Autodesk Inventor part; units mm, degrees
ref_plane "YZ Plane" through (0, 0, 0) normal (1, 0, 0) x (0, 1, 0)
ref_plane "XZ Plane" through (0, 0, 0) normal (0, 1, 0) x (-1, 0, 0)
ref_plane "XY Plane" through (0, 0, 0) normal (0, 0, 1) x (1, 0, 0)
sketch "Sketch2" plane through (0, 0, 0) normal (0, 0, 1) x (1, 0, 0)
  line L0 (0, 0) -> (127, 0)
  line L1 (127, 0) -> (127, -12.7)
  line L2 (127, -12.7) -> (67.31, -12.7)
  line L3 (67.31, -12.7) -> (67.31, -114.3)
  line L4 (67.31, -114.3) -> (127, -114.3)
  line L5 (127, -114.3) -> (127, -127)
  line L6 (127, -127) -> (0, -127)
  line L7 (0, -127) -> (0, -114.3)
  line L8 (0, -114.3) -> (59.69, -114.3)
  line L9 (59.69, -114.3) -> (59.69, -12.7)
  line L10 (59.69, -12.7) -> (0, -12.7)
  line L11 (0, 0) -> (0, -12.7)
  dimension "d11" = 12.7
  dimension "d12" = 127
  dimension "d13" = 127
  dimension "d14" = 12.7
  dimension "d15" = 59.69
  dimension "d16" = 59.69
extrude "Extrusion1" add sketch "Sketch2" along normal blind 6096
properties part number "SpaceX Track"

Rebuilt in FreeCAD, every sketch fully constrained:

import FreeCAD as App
import Part
import Sketcher
Q = App.Units.Quantity

doc = App.newDocument("Part")
body = doc.addObject("PartDesign::Body", "Body")

# Sketch on XY plane
sketch1 = body.newObject("Sketcher::SketchObject", "Sketch")
sketch1.AttachmentSupport = (doc.getObject("XY_Plane"), [""])
sketch1.MapMode = "FlatFace"
sketch1.addGeometry(Part.LineSegment(App.Vector(127, 0, 0), App.Vector(0, 0, 0)), False)
sketch1.addGeometry(Part.LineSegment(App.Vector(0, 0, 0), App.Vector(0, -13, 0)), False)
sketch1.addGeometry(Part.LineSegment(App.Vector(0, -13, 0), App.Vector(60, -13, 0)), False)
sketch1.addGeometry(Part.LineSegment(App.Vector(60, -13, 0), App.Vector(60, -114, 0)), False)
sketch1.addGeometry(Part.LineSegment(App.Vector(60, -114, 0), App.Vector(0, -114, 0)), False)
sketch1.addGeometry(Part.LineSegment(App.Vector(0, -114, 0), App.Vector(0, -127, 0)), False)
sketch1.addGeometry(Part.LineSegment(App.Vector(0, -127, 0), App.Vector(127, -127, 0)), False)
sketch1.addGeometry(Part.LineSegment(App.Vector(127, -127, 0), App.Vector(127, -114, 0)), False)
sketch1.addGeometry(Part.LineSegment(App.Vector(127, -114, 0), App.Vector(67, -114, 0)), False)
sketch1.addGeometry(Part.LineSegment(App.Vector(67, -114, 0), App.Vector(67, -13, 0)), False)
sketch1.addGeometry(Part.LineSegment(App.Vector(67, -13, 0), App.Vector(127, -13, 0)), False)
sketch1.addGeometry(Part.LineSegment(App.Vector(127, -13, 0), App.Vector(127, 0, 0)), False)
sketch1.addConstraint(Sketcher.Constraint("Coincident", 0, 2, 1, 1))
sketch1.addConstraint(Sketcher.Constraint("Coincident", 1, 2, 2, 1))
sketch1.addConstraint(Sketcher.Constraint("Coincident", 2, 2, 3, 1))
sketch1.addConstraint(Sketcher.Constraint("Coincident", 3, 2, 4, 1))
sketch1.addConstraint(Sketcher.Constraint("Coincident", 4, 2, 5, 1))
sketch1.addConstraint(Sketcher.Constraint("Coincident", 5, 2, 6, 1))
sketch1.addConstraint(Sketcher.Constraint("Coincident", 6, 2, 7, 1))
sketch1.addConstraint(Sketcher.Constraint("Coincident", 7, 2, 8, 1))
sketch1.addConstraint(Sketcher.Constraint("Coincident", 8, 2, 9, 1))
sketch1.addConstraint(Sketcher.Constraint("Coincident", 9, 2, 10, 1))
sketch1.addConstraint(Sketcher.Constraint("Coincident", 10, 2, 11, 1))
sketch1.addConstraint(Sketcher.Constraint("Coincident", 11, 2, 0, 1))
sketch1.addConstraint(Sketcher.Constraint("Horizontal", 0))
sketch1.addConstraint(Sketcher.Constraint("Vertical", 1))
sketch1.addConstraint(Sketcher.Constraint("Horizontal", 2))
sketch1.addConstraint(Sketcher.Constraint("Vertical", 3))
sketch1.addConstraint(Sketcher.Constraint("Horizontal", 4))
sketch1.addConstraint(Sketcher.Constraint("Vertical", 5))
sketch1.addConstraint(Sketcher.Constraint("Horizontal", 6))
sketch1.addConstraint(Sketcher.Constraint("Vertical", 7))
sketch1.addConstraint(Sketcher.Constraint("Horizontal", 8))
sketch1.addConstraint(Sketcher.Constraint("Vertical", 9))
sketch1.addConstraint(Sketcher.Constraint("Horizontal", 10))
sketch1.addConstraint(Sketcher.Constraint("Vertical", 11))
sketch1.addConstraint(Sketcher.Constraint("Coincident", 0, 2, -1, 1))
sketch1.addConstraint(Sketcher.Constraint("PointOnObject", 4, 2, -2))
sketch1.addConstraint(Sketcher.Constraint("Horizontal", 4, 2, 7, 2))
sketch1.addConstraint(Sketcher.Constraint("Horizontal", 2, 2, 9, 2))
sketch1.addConstraint(Sketcher.Constraint("Vertical", 7, 2, 10, 2))
sketch1.addConstraint(Sketcher.Constraint("Equal", 4, 8))
sketch1.addConstraint(Sketcher.Constraint("Equal", 1, 5))
sketch1.addConstraint(Sketcher.Constraint("DistanceX", 0, 2, 0, 1, Q("5 in")))
sketch1.addConstraint(Sketcher.Constraint("DistanceY", 1, 2, 1, 1, Q("0.5 in")))
sketch1.addConstraint(Sketcher.Constraint("DistanceY", 5, 2, -1, 1, Q("5 in")))
sketch1.addConstraint(Sketcher.Constraint("DistanceX", 2, 1, 2, 2, Q("2.35 in")))
pad1 = body.newObject("PartDesign::Pad", "Pad")
pad1.Profile = sketch1
pad1.Length = Q("240 in")

doc.recompute()
